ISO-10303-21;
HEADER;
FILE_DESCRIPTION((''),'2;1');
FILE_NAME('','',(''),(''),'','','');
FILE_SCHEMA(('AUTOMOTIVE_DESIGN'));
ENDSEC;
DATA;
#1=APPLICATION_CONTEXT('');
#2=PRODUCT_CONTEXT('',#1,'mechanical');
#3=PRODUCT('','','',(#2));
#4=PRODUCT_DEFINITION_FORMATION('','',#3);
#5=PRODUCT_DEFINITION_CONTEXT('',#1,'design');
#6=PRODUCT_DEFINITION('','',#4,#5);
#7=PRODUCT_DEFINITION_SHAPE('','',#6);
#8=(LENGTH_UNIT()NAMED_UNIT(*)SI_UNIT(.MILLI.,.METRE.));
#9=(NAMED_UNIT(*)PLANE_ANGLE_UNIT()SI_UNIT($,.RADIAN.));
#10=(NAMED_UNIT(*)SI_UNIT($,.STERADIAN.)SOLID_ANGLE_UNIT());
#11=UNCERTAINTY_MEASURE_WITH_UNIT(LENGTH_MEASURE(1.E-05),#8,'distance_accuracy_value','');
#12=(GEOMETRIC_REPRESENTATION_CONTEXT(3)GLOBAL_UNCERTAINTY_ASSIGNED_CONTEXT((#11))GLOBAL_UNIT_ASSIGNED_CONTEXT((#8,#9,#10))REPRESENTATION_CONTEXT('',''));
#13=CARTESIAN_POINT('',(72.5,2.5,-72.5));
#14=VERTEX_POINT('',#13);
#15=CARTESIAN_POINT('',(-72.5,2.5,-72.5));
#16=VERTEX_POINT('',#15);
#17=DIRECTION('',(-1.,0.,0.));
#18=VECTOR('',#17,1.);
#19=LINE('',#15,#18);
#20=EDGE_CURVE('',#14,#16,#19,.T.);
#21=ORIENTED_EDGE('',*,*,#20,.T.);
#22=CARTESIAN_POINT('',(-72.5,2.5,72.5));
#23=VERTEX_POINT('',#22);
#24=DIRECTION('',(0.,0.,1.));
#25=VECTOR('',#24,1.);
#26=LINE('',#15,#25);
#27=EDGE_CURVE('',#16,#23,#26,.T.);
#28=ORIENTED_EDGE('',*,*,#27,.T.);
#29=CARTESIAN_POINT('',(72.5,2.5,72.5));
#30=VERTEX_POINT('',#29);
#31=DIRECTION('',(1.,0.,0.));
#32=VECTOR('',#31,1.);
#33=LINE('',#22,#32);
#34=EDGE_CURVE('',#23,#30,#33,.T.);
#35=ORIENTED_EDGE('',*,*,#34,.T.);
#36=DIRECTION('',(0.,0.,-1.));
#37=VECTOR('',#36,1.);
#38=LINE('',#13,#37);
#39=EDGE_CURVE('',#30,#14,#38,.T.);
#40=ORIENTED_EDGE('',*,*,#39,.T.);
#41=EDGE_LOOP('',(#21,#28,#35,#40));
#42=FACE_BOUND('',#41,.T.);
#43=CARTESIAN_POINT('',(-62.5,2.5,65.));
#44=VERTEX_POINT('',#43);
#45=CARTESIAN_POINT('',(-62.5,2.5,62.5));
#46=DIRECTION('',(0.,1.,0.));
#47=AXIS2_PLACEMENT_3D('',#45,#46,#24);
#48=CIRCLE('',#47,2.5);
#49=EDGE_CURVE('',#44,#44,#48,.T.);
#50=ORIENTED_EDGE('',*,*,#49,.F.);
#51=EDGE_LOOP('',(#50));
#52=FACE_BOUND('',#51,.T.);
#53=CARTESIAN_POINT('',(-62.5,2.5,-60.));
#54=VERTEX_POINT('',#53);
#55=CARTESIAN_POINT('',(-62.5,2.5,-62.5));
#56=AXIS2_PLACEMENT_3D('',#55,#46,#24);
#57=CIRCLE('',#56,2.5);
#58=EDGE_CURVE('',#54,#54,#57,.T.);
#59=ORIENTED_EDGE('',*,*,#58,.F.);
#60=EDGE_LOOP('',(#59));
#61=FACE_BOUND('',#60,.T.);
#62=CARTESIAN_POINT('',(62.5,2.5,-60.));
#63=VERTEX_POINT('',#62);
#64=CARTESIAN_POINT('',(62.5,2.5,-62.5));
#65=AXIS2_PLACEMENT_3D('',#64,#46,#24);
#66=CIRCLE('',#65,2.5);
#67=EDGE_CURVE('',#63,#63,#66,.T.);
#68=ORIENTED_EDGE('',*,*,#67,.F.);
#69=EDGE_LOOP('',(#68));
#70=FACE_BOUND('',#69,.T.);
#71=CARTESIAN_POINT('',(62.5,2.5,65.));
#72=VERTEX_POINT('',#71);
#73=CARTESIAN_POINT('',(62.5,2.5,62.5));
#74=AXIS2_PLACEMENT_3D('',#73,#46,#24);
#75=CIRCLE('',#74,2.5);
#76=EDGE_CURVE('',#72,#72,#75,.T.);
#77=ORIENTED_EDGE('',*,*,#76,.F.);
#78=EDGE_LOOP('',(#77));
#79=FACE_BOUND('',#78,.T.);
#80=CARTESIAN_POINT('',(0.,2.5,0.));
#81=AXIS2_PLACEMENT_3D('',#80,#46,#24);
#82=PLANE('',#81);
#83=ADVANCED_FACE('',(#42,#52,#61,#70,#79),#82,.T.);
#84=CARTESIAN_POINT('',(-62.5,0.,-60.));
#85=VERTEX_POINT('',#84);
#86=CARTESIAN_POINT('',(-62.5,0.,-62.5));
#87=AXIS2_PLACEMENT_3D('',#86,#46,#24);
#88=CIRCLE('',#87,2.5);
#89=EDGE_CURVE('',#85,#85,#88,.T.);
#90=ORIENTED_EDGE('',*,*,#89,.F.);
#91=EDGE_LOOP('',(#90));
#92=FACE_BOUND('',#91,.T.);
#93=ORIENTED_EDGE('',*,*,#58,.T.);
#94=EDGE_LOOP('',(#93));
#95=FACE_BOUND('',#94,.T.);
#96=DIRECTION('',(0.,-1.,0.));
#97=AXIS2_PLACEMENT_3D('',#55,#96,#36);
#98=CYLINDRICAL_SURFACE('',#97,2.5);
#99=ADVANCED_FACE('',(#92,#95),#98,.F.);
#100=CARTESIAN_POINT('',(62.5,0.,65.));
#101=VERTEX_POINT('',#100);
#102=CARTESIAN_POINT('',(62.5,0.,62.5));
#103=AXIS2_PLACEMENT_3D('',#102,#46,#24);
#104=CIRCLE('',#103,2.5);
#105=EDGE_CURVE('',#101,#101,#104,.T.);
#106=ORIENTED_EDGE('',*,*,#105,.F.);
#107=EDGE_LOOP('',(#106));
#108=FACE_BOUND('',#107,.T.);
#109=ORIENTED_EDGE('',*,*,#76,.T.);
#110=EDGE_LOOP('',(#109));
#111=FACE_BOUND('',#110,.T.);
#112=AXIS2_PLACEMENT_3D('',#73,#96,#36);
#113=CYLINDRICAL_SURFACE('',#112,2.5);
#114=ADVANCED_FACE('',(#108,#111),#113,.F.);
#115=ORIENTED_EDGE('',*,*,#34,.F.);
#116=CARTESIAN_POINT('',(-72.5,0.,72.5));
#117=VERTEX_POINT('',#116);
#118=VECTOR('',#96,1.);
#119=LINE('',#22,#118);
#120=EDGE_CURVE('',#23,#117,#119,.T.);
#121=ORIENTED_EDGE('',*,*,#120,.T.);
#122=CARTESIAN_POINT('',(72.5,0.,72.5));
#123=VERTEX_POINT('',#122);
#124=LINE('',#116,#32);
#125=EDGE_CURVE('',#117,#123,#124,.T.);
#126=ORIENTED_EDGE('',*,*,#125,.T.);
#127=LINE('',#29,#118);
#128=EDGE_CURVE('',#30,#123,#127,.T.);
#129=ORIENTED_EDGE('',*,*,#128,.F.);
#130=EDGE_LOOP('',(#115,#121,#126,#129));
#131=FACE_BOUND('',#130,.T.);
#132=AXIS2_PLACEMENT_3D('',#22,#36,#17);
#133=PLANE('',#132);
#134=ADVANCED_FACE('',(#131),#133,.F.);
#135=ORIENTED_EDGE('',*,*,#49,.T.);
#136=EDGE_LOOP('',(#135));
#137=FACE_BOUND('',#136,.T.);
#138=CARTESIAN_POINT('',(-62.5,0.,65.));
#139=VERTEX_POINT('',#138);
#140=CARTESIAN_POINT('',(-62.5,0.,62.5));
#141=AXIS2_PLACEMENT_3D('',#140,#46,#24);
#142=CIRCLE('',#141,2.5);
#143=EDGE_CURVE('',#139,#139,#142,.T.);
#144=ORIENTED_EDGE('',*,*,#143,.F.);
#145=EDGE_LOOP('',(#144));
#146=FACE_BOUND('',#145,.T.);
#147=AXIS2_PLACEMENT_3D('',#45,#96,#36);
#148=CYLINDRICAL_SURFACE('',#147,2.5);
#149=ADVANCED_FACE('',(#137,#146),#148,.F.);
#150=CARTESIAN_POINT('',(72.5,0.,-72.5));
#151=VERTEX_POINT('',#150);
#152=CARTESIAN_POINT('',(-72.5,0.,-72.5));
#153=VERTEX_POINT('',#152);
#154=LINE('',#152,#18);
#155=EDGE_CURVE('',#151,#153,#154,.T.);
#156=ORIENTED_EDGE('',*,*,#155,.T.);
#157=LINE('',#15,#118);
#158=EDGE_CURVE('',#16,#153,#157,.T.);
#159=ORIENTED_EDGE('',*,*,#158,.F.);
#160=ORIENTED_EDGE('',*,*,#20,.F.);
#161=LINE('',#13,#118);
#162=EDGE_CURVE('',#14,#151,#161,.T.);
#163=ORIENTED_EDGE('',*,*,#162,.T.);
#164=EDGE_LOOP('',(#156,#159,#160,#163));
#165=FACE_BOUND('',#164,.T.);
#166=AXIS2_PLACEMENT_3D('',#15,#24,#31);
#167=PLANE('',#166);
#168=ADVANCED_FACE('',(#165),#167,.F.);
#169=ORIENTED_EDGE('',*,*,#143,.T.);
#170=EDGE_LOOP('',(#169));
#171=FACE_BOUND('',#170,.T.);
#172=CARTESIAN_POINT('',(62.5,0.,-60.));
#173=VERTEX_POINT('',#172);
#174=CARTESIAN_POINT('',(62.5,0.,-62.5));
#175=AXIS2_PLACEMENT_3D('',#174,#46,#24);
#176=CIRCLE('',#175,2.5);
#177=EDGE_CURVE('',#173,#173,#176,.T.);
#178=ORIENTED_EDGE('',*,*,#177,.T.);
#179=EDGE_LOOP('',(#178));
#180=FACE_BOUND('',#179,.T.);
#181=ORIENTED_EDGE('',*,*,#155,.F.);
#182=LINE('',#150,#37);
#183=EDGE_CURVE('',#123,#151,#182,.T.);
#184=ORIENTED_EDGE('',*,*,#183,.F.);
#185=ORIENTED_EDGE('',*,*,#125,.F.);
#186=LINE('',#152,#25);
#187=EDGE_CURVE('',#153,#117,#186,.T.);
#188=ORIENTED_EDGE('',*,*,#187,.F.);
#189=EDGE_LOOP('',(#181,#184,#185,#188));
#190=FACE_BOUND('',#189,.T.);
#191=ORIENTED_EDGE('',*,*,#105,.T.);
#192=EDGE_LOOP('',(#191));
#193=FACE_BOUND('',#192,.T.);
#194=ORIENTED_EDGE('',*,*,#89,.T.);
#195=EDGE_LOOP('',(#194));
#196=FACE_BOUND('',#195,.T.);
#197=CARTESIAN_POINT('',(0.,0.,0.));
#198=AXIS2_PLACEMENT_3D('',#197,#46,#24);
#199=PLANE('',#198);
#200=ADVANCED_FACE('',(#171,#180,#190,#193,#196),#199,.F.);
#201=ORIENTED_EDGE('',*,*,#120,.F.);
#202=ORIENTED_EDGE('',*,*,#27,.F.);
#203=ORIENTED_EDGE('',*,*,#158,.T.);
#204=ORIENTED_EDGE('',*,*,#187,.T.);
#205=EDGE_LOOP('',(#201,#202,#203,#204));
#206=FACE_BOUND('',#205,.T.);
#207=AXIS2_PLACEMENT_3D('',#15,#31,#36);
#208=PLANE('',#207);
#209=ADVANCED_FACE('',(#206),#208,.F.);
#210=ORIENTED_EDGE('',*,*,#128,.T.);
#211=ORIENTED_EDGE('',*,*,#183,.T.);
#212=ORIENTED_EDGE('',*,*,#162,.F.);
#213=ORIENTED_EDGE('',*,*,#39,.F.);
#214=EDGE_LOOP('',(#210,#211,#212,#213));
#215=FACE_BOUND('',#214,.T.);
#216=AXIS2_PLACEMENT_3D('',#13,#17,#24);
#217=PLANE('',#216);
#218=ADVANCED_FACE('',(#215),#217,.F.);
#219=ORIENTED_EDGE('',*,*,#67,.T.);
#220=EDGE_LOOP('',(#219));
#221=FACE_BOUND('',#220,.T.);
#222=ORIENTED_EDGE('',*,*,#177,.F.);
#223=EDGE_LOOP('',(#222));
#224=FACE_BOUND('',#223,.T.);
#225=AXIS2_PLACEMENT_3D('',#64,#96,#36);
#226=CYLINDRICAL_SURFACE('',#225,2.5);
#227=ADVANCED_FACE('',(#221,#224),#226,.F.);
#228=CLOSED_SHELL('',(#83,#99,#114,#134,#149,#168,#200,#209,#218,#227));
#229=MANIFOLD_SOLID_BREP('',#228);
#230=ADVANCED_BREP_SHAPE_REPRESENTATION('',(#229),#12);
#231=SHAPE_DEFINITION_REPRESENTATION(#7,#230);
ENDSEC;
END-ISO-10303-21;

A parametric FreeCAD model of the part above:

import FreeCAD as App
import Part
import Sketcher


def add_polygon(sketch, points):
    """Adds a closed chain of lines whose ends are joined by coincident constraints."""
    first, n = sketch.GeometryCount, len(points)
    for a, b in zip(points, points[1:] + points[:1]):
        sketch.addGeometry(Part.LineSegment(App.Vector(*a, 0), App.Vector(*b, 0)), False)
    for i in range(n):
        sketch.addConstraint(Sketcher.Constraint("Coincident", first + i, 2, first + (i + 1) % n, 1))

doc = App.newDocument("Part")
body = doc.addObject("PartDesign::Body", "Body")

# Sketch on XZ plane
sketch1 = body.newObject("Sketcher::SketchObject", "Sketch")
sketch1.AttachmentSupport = (doc.getObject("XZ_Plane"), [""])
sketch1.MapMode = "FlatFace"
add_polygon(sketch1, [(-72.5, -72.5), (-72.5, 72.5), (72.5, 72.5), (72.5, -72.5)])  # lines 0-3
sketch1.addGeometry(Part.Circle(App.Vector(-62.5, 62.5, 0), App.Vector(0, 0, 1), 2.5), False)  # 4
sketch1.addGeometry(Part.Circle(App.Vector(62.5, 62.5, 0), App.Vector(0, 0, 1), 2.5), False)  # 5
sketch1.addGeometry(Part.Circle(App.Vector(-62.5, -62.5, 0), App.Vector(0, 0, 1), 2.5), False)  # 6
sketch1.addGeometry(Part.Circle(App.Vector(62.5, -62.5, 0), App.Vector(0, 0, 1), 2.5), False)  # 7
sketch1.addConstraint(Sketcher.Constraint("Vertical", 0))
sketch1.addConstraint(Sketcher.Constraint("Horizontal", 1))
sketch1.addConstraint(Sketcher.Constraint("Vertical", 2))
sketch1.addConstraint(Sketcher.Constraint("Horizontal", 3))
sketch1.addConstraint(Sketcher.Constraint("Equal", 4, 5))
sketch1.addConstraint(Sketcher.Constraint("Equal", 5, 6))
sketch1.addConstraint(Sketcher.Constraint("Equal", 6, 7))
sketch1.addConstraint(Sketcher.Constraint("Symmetric", 5, 3, 6, 3, -1, 1))
sketch1.addConstraint(Sketcher.Constraint("Symmetric", 4, 3, 7, 3, -1, 1))
sketch1.addConstraint(Sketcher.Constraint("Symmetric", 0, 2, 2, 2, -1, 1))
sketch1.addConstraint(Sketcher.Constraint("Symmetric", 4, 3, 5, 3, -2))
sketch1.addConstraint(Sketcher.Constraint("Equal", 3, 0))
sketch1.addConstraint(Sketcher.Constraint("Diameter", 4, 5.0))
sketch1.addConstraint(Sketcher.Constraint("DistanceX", 1, 1, 1, 2, 145.0))
sketch1.addConstraint(Sketcher.Constraint("DistanceX", 4, 3, 5, 3, 125.0))
sketch1.addConstraint(Sketcher.Constraint("DistanceY", 6, 3, 4, 3, 125.0))
pad1 = body.newObject("PartDesign::Pad", "Pad")
pad1.Profile = sketch1
pad1.Length = 2.5
pad1.Reversed = True

doc.recompute()
